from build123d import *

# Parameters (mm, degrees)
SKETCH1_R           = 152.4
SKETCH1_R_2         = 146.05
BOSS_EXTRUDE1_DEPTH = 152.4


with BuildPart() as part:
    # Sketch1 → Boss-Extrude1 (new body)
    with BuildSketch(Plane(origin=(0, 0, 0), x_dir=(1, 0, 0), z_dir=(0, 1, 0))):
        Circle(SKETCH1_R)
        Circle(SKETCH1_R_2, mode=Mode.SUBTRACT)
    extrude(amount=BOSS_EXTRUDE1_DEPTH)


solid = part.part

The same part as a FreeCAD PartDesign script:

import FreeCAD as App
import Part
import Sketcher
from FreeCAD import Vector
Q = App.Units.Quantity

doc = App.newDocument("Part")
params = doc.addObject("Spreadsheet::Sheet", "Params")
for row, (alias, value) in enumerate([
    ("sketch1_diameter", "12 in"),
    ("sketch1_diameter2", "11.5 in"),
    ("pad1_length", "6 in"),
], start=1):
    params.set(f"A{row}", alias)
    params.set(f"B{row}", "=" + value)
    params.setAlias(f"B{row}", alias)

body = doc.addObject("PartDesign::Body", "Body")

# Sketch on XZ plane
sketch1 = body.newObject("Sketcher::SketchObject", "Sketch")
sketch1.AttachmentSupport = (doc.getObject("XZ_Plane"), [""])
sketch1.MapMode = "FlatFace"
sketch1.addGeometry([
    Part.Circle(Vector(0, 0, 0), Vector(0, 0, 1), 152),
    Part.Circle(Vector(0, 0, 0), Vector(0, 0, 1), 146),
], False)
sketch1.addConstraint([
    Sketcher.Constraint("Coincident", 0, 3, -1, 1),
    Sketcher.Constraint("Coincident", 1, 3, -1, 1),
    Sketcher.Constraint("Diameter", 0, Q("12 in")),
    Sketcher.Constraint("Diameter", 1, Q("11.5 in")),
])
sketch1.setExpression("Constraints[2]", "Params.sketch1_diameter")
sketch1.setExpression("Constraints[3]", "Params.sketch1_diameter2")
pad1 = body.newObject("PartDesign::Pad", "Pad")
pad1.Profile = sketch1
pad1.setExpression("Length", "Params.pad1_length")
pad1.Reversed = True

doc.recompute()
